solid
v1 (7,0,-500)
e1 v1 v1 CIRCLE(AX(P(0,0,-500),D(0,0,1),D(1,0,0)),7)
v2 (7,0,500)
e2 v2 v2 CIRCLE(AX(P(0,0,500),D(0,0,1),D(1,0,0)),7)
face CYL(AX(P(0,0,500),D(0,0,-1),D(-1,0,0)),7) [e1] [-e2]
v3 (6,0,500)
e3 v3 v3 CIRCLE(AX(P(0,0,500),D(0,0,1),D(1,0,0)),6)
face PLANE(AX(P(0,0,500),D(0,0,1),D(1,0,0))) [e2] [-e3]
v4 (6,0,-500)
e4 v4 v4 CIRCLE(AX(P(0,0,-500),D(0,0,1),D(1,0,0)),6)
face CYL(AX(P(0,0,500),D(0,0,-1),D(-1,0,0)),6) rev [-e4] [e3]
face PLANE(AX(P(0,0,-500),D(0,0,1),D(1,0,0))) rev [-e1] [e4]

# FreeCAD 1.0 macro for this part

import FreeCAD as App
import Part
import Sketcher

doc = App.newDocument("Part")
body = doc.addObject("PartDesign::Body", "Body")

# Sketch on XY plane
sketch1 = doc.addObject("Sketcher::SketchObject", "Sketch")
body.addObject(sketch1)
sketch1.AttachmentSupport = (doc.XY_Plane, [""])
sketch1.MapMode = "FlatFace"
sketch1.addGeometry([
    Part.Circle(App.Vector(0, 0, 0), App.Vector(0, 0, 1), 7),
    Part.Circle(App.Vector(0, 0, 0), App.Vector(0, 0, 1), 6),
], False)
sketch1.addConstraint([
    Sketcher.Constraint("Coincident", 0, 3, -1, 1),
    Sketcher.Constraint("Coincident", 1, 3, -1, 1),
    Sketcher.Constraint("Diameter", 0, 14.0),
    Sketcher.Constraint("Diameter", 1, 12.0),
])
pad1 = doc.addObject("PartDesign::Pad", "Pad")
body.addObject(pad1)
pad1.Profile = sketch1
pad1.Length = 1000
pad1.Midplane = True

doc.recompute()
